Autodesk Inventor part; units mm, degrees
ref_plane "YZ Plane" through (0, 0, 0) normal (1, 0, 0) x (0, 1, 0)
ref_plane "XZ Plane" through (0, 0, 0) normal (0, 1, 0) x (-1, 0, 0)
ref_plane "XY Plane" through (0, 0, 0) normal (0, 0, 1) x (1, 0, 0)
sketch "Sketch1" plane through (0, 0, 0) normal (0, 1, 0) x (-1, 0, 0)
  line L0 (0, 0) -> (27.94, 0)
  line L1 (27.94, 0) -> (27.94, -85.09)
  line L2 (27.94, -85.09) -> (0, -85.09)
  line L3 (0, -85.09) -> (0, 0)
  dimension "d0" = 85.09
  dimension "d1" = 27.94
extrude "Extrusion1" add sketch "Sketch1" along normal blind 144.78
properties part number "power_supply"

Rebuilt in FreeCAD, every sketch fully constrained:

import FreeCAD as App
import Part
import Sketcher
Q = App.Units.Quantity

doc = App.newDocument("Part")
params = doc.addObject("Spreadsheet::Sheet", "Params")
for row, (alias, value) in enumerate([
    ("sketch1_width", "1.1 in"),
    ("sketch1_height", "3.35 in"),
    ("pad1_length", "5.7 in"),
], start=1):
    params.set(f"A{row}", alias)
    params.set(f"B{row}", "=" + value)
    params.setAlias(f"B{row}", alias)

body = doc.addObject("PartDesign::Body", "Body")

sketch1 = doc.addObject("Sketcher::SketchObject", "Sketch")
body.addObject(sketch1)
sketch1.AttachmentSupport = (doc.XZ_Plane, [""])
sketch1.MapMode = "FlatFace"
sketch1.addGeometry([
    Part.LineSegment(App.Vector(-27.94, 0, 0), App.Vector(0, 0, 0)),
    Part.LineSegment(App.Vector(0, 0, 0), App.Vector(0, -85.09, 0)),
    Part.LineSegment(App.Vector(0, -85.09, 0), App.Vector(-27.94, -85.09, 0)),
    Part.LineSegment(App.Vector(-27.94, -85.09, 0), App.Vector(-27.94, 0, 0)),
], False)
sketch1.addConstraint([
    Sketcher.Constraint("Coincident", 0, 2, 1, 1),
    Sketcher.Constraint("Coincident", 1, 2, 2, 1),
    Sketcher.Constraint("Coincident", 2, 2, 3, 1),
    Sketcher.Constraint("Coincident", 3, 2, 0, 1),
    Sketcher.Constraint("Horizontal", 0),
    Sketcher.Constraint("Vertical", 1),
    Sketcher.Constraint("Horizontal", 2),
    Sketcher.Constraint("Vertical", 3),
    Sketcher.Constraint("Coincident", 0, 2, -1, 1),
    Sketcher.Constraint("DistanceX", 0, 1, 0, 2, Q("1.1 in")),
    Sketcher.Constraint("DistanceY", 1, 2, 1, 1, Q("3.35 in")),
])
sketch1.setExpression("Constraints[9]", "Params.sketch1_width")
sketch1.setExpression("Constraints[10]", "Params.sketch1_height")
pad1 = doc.addObject("PartDesign::Pad", "Pad")
body.addObject(pad1)
pad1.Profile = sketch1
pad1.setExpression("Length", "Params.pad1_length")
pad1.Reversed = True

doc.recompute()
